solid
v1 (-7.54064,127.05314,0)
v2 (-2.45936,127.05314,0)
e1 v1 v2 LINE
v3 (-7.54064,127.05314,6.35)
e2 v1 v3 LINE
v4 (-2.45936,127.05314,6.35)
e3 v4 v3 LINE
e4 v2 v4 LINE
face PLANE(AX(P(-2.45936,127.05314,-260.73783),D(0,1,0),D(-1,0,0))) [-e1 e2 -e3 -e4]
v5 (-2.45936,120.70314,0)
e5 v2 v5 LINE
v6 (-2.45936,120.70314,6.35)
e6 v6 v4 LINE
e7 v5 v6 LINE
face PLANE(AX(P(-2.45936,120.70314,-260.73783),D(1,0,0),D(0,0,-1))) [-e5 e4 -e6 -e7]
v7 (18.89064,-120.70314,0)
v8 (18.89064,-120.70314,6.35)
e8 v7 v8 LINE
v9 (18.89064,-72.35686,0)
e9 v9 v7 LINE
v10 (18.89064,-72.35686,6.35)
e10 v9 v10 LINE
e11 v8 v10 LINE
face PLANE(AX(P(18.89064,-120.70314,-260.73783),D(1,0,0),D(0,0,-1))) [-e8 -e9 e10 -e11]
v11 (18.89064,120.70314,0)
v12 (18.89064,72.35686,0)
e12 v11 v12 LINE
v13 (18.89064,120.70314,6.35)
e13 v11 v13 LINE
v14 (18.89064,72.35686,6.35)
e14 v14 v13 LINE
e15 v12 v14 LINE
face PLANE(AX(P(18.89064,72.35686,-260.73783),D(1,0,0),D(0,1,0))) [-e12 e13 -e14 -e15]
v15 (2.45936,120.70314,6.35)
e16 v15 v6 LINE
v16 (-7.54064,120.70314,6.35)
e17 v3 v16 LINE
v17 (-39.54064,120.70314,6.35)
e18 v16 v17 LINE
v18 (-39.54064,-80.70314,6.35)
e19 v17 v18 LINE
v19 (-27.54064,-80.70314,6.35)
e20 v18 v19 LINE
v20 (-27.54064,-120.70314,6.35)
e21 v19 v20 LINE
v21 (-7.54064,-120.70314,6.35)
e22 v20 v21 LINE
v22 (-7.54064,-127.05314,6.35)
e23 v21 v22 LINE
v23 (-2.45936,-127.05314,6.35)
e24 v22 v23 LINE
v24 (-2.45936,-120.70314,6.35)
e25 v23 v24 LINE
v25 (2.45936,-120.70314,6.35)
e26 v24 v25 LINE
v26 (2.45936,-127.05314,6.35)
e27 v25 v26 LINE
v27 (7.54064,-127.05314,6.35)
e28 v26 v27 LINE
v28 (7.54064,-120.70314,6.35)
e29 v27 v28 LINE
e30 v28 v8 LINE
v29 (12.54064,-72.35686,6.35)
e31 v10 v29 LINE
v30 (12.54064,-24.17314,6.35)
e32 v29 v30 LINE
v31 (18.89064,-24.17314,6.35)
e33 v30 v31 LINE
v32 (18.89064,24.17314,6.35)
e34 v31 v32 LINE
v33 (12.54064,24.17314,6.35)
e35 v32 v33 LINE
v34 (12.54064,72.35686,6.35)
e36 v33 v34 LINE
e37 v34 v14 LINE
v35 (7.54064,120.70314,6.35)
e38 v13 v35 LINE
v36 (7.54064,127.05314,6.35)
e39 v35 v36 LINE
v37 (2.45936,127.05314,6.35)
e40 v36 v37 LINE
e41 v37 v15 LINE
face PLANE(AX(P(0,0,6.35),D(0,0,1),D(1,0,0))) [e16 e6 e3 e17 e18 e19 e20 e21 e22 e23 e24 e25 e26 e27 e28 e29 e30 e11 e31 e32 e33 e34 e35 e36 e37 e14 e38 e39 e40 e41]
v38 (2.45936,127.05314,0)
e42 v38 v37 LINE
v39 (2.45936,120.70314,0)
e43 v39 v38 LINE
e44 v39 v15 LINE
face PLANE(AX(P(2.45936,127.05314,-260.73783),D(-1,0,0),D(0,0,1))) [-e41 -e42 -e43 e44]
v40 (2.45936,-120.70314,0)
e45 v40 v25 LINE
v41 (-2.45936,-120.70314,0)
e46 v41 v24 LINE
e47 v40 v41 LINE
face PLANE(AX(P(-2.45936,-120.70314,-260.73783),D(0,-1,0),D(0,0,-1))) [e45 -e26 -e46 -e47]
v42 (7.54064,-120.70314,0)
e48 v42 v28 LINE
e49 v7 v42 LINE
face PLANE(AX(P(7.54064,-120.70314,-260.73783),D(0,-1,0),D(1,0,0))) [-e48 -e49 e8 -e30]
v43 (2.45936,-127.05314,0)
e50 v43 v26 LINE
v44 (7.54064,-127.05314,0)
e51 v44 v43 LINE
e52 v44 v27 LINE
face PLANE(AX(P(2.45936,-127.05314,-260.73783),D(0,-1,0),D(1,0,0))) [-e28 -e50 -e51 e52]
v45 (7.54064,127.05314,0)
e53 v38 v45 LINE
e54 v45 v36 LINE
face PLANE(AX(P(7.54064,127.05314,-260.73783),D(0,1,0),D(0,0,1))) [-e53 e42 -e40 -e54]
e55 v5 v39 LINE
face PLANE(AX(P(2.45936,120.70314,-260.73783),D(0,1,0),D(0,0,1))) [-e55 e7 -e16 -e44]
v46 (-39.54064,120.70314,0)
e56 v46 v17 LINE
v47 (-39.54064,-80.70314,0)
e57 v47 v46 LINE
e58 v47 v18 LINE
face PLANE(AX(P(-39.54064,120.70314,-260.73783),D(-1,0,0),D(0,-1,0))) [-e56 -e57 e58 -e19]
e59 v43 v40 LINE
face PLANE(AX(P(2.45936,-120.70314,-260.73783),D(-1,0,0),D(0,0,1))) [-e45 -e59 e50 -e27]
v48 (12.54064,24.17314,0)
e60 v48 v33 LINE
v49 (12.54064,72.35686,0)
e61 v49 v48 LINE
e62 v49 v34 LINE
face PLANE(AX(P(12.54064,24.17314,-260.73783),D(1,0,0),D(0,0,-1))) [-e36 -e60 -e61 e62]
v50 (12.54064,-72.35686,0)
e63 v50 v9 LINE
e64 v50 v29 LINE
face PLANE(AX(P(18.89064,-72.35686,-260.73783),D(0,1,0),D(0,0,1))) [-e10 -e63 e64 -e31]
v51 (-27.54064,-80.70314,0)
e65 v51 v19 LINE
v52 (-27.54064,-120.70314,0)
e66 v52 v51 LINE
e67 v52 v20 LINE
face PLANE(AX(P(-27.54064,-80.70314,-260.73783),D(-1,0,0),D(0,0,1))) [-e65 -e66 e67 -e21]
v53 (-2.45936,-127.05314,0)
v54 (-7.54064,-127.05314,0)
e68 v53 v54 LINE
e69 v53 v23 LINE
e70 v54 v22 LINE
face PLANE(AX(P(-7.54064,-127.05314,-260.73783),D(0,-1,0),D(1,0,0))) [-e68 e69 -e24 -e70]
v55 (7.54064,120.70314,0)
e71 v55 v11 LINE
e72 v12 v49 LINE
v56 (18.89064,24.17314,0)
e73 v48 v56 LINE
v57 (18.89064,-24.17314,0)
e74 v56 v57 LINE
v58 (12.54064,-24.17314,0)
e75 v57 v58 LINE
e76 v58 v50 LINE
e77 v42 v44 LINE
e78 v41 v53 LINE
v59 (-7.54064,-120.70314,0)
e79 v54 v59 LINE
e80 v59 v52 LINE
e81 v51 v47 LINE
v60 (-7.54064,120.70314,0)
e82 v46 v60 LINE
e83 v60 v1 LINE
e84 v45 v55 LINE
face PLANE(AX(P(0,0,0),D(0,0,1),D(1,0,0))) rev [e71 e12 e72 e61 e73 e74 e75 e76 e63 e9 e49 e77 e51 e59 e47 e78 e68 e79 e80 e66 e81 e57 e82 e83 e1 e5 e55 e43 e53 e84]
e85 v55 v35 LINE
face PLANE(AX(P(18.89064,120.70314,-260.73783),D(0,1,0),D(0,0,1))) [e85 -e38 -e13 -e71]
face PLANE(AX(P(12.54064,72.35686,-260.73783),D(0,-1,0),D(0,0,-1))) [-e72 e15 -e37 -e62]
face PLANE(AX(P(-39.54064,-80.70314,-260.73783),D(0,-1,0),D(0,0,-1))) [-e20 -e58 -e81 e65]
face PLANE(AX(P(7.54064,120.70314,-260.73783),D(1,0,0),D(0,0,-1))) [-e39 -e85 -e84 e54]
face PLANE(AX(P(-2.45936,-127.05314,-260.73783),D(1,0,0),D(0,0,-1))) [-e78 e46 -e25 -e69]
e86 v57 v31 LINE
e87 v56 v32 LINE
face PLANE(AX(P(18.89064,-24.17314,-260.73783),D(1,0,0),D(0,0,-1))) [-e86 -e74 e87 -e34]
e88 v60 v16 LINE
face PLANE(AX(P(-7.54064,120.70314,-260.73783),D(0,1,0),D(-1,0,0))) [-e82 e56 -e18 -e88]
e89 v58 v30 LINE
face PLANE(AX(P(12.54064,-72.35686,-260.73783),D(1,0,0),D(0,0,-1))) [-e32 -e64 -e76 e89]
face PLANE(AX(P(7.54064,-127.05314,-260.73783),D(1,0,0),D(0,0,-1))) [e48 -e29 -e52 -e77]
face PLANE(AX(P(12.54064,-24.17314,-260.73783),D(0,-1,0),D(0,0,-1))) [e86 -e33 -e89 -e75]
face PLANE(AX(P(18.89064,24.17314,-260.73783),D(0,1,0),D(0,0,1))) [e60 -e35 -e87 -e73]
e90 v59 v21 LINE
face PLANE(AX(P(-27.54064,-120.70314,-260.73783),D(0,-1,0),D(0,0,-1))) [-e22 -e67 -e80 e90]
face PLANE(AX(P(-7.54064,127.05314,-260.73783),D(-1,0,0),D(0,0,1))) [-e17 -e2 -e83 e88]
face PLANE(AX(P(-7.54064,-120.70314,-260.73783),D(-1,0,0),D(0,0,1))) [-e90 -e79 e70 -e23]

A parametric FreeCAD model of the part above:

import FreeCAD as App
import Part
import Sketcher

V = App.Vector
Q = App.Units.Quantity

doc = App.newDocument("Part")
body = doc.addObject("PartDesign::Body", "Body")

# Sketch on XY plane
sketch1 = doc.addObject("Sketcher::SketchObject", "Sketch")
body.addObject(sketch1)
sketch1.AttachmentSupport = (doc.XY_Plane, [""])
sketch1.MapMode = "FlatFace"
sketch1.addGeometry(Part.LineSegment(V(12, 72, 0), V(19, 72, 0)), False)
sketch1.addGeometry(Part.LineSegment(V(19, 72, 0), V(19, 121, 0)), False)
sketch1.addGeometry(Part.LineSegment(V(19, 121, 0), V(8, 121, 0)), False)
sketch1.addGeometry(Part.LineSegment(V(8, 121, 0), V(8, 127, 0)), False)
sketch1.addGeometry(Part.LineSegment(V(8, 127, 0), V(2, 127, 0)), False)
sketch1.addGeometry(Part.LineSegment(V(2, 127, 0), V(2, 121, 0)), False)
sketch1.addGeometry(Part.LineSegment(V(2, 121, 0), V(-2, 121, 0)), False)
sketch1.addGeometry(Part.LineSegment(V(-2, 121, 0), V(-2, 127, 0)), False)
sketch1.addGeometry(Part.LineSegment(V(-2, 127, 0), V(-8, 127, 0)), False)
sketch1.addGeometry(Part.LineSegment(V(-8, 127, 0), V(-8, 121, 0)), False)
sketch1.addGeometry(Part.LineSegment(V(-8, 121, 0), V(-40, 121, 0)), False)
sketch1.addGeometry(Part.LineSegment(V(-40, 121, 0), V(-40, -81, 0)), False)
sketch1.addGeometry(Part.LineSegment(V(-40, -81, 0), V(-28, -81, 0)), False)
sketch1.addGeometry(Part.LineSegment(V(-28, -81, 0), V(-28, -121, 0)), False)
sketch1.addGeometry(Part.LineSegment(V(-28, -121, 0), V(-8, -121, 0)), False)
sketch1.addGeometry(Part.LineSegment(V(-8, -121, 0), V(-8, -127, 0)), False)
sketch1.addGeometry(Part.LineSegment(V(-8, -127, 0), V(-2, -127, 0)), False)
sketch1.addGeometry(Part.LineSegment(V(-2, -127, 0), V(-2, -121, 0)), False)
sketch1.addGeometry(Part.LineSegment(V(-2, -121, 0), V(2, -121, 0)), False)
sketch1.addGeometry(Part.LineSegment(V(2, -121, 0), V(2, -127, 0)), False)
sketch1.addGeometry(Part.LineSegment(V(2, -127, 0), V(8, -127, 0)), False)
sketch1.addGeometry(Part.LineSegment(V(8, -127, 0), V(8, -121, 0)), False)
sketch1.addGeometry(Part.LineSegment(V(8, -121, 0), V(19, -121, 0)), False)
sketch1.addGeometry(Part.LineSegment(V(19, -121, 0), V(19, -72, 0)), False)
sketch1.addGeometry(Part.LineSegment(V(19, -72, 0), V(12, -72, 0)), False)
sketch1.addGeometry(Part.LineSegment(V(12, -72, 0), V(12, -24, 0)), False)
sketch1.addGeometry(Part.LineSegment(V(12, -24, 0), V(19, -24, 0)), False)
sketch1.addGeometry(Part.LineSegment(V(19, -24, 0), V(19, 24, 0)), False)
sketch1.addGeometry(Part.LineSegment(V(19, 24, 0), V(12, 24, 0)), False)
sketch1.addGeometry(Part.LineSegment(V(12, 24, 0), V(12, 72, 0)), False)
sketch1.addConstraint(Sketcher.Constraint("Coincident", 0, 2, 1, 1))
sketch1.addConstraint(Sketcher.Constraint("Coincident", 1, 2, 2, 1))
sketch1.addConstraint(Sketcher.Constraint("Coincident", 2, 2, 3, 1))
sketch1.addConstraint(Sketcher.Constraint("Coincident", 3, 2, 4, 1))
sketch1.addConstraint(Sketcher.Constraint("Coincident", 4, 2, 5, 1))
sketch1.addConstraint(Sketcher.Constraint("Coincident", 5, 2, 6, 1))
sketch1.addConstraint(Sketcher.Constraint("Coincident", 6, 2, 7, 1))
sketch1.addConstraint(Sketcher.Constraint("Coincident", 7, 2, 8, 1))
sketch1.addConstraint(Sketcher.Constraint("Coincident", 8, 2, 9, 1))
sketch1.addConstraint(Sketcher.Constraint("Coincident", 9, 2, 10, 1))
sketch1.addConstraint(Sketcher.Constraint("Coincident", 10, 2, 11, 1))
sketch1.addConstraint(Sketcher.Constraint("Coincident", 11, 2, 12, 1))
sketch1.addConstraint(Sketcher.Constraint("Coincident", 12, 2, 13, 1))
sketch1.addConstraint(Sketcher.Constraint("Coincident", 13, 2, 14, 1))
sketch1.addConstraint(Sketcher.Constraint("Coincident", 14, 2, 15, 1))
sketch1.addConstraint(Sketcher.Constraint("Coincident", 15, 2, 16, 1))
sketch1.addConstraint(Sketcher.Constraint("Coincident", 16, 2, 17, 1))
sketch1.addConstraint(Sketcher.Constraint("Coincident", 17, 2, 18, 1))
sketch1.addConstraint(Sketcher.Constraint("Coincident", 18, 2, 19, 1))
sketch1.addConstraint(Sketcher.Constraint("Coincident", 19, 2, 20, 1))
sketch1.addConstraint(Sketcher.Constraint("Coincident", 20, 2, 21, 1))
sketch1.addConstraint(Sketcher.Constraint("Coincident", 21, 2, 22, 1))
sketch1.addConstraint(Sketcher.Constraint("Coincident", 22, 2, 23, 1))
sketch1.addConstraint(Sketcher.Constraint("Coincident", 23, 2, 24, 1))
sketch1.addConstraint(Sketcher.Constraint("Coincident", 24, 2, 25, 1))
sketch1.addConstraint(Sketcher.Constraint("Coincident", 25, 2, 26, 1))
sketch1.addConstraint(Sketcher.Constraint("Coincident", 26, 2, 27, 1))
sketch1.addConstraint(Sketcher.Constraint("Coincident", 27, 2, 28, 1))
sketch1.addConstraint(Sketcher.Constraint("Coincident", 28, 2, 29, 1))
sketch1.addConstraint(Sketcher.Constraint("Coincident", 29, 2, 0, 1))
sketch1.addConstraint(Sketcher.Constraint("Horizontal", 0))
sketch1.addConstraint(Sketcher.Constraint("Vertical", 1))
sketch1.addConstraint(Sketcher.Constraint("Horizontal", 2))
sketch1.addConstraint(Sketcher.Constraint("Vertical", 3))
sketch1.addConstraint(Sketcher.Constraint("Horizontal", 4))
sketch1.addConstraint(Sketcher.Constraint("Vertical", 5))
sketch1.addConstraint(Sketcher.Constraint("Horizontal", 6))
sketch1.addConstraint(Sketcher.Constraint("Vertical", 7))
sketch1.addConstraint(Sketcher.Constraint("Horizontal", 8))
sketch1.addConstraint(Sketcher.Constraint("Vertical", 9))
sketch1.addConstraint(Sketcher.Constraint("Horizontal", 10))
sketch1.addConstraint(Sketcher.Constraint("Vertical", 11))
sketch1.addConstraint(Sketcher.Constraint("Horizontal", 12))
sketch1.addConstraint(Sketcher.Constraint("Vertical", 13))
sketch1.addConstraint(Sketcher.Constraint("Horizontal", 14))
sketch1.addConstraint(Sketcher.Constraint("Vertical", 15))
sketch1.addConstraint(Sketcher.Constraint("Horizontal", 16))
sketch1.addConstraint(Sketcher.Constraint("Vertical", 17))
sketch1.addConstraint(Sketcher.Constraint("Horizontal", 18))
sketch1.addConstraint(Sketcher.Constraint("Vertical", 19))
sketch1.addConstraint(Sketcher.Constraint("Horizontal", 20))
sketch1.addConstraint(Sketcher.Constraint("Vertical", 21))
sketch1.addConstraint(Sketcher.Constraint("Horizontal", 22))
sketch1.addConstraint(Sketcher.Constraint("Vertical", 23))
sketch1.addConstraint(Sketcher.Constraint("Horizontal", 24))
sketch1.addConstraint(Sketcher.Constraint("Vertical", 25))
sketch1.addConstraint(Sketcher.Constraint("Horizontal", 26))
sketch1.addConstraint(Sketcher.Constraint("Vertical", 27))
sketch1.addConstraint(Sketcher.Constraint("Horizontal", 28))
sketch1.addConstraint(Sketcher.Constraint("Vertical", 29))
sketch1.addConstraint(Sketcher.Constraint("Symmetric", 2, 2, 14, 2, -1, 1))
sketch1.addConstraint(Sketcher.Constraint("Symmetric", 4, 2, 16, 2, -1, 1))
sketch1.addConstraint(Sketcher.Constraint("Symmetric", 6, 2, 18, 2, -1, 1))
sketch1.addConstraint(Sketcher.Constraint("Symmetric", 8, 2, 20, 2, -1, 1))
sketch1.addConstraint(Sketcher.Constraint("Symmetric", 4, 2, 7, 2, -2))
sketch1.addConstraint(Sketcher.Constraint("Symmetric", 2, 2, 9, 2, -2))
sketch1.addConstraint(Sketcher.Constraint("Symmetric", 1, 2, 22, 2, -1))
sketch1.addConstraint(Sketcher.Constraint("Symmetric", 25, 2, 28, 2, -1))
sketch1.addConstraint(Sketcher.Constraint("Horizontal", 2, 2, 5, 2))
sketch1.addConstraint(Sketcher.Constraint("Vertical", 23, 2, 26, 2))
sketch1.addConstraint(Sketcher.Constraint("Equal", 4, 6))
sketch1.addConstraint(Sketcher.Constraint("Equal", 28, 3))
sketch1.addConstraint(Sketcher.Constraint("Equal", 1, 23))
sketch1.addConstraint(Sketcher.Constraint("Equal", 23, 25))
sketch1.addConstraint(Sketcher.Constraint("Equal", 25, 27))
sketch1.addConstraint(Sketcher.Constraint("DistanceX", 4, 2, 4, 1, Q("5 mm")))
sketch1.addConstraint(Sketcher.Constraint("DistanceX", 10, 2, 10, 1, Q("32 mm")))
sketch1.addConstraint(Sketcher.Constraint("DistanceX", 12, 1, 12, 2, Q("12 mm")))
sketch1.addConstraint(Sketcher.Constraint("DistanceY", 13, 2, 13, 1, Q("40 mm")))
sketch1.addConstraint(Sketcher.Constraint("DistanceX", 12, 2, 24, 2, Q("40 mm")))
sketch1.addConstraint(Sketcher.Constraint("DistanceX", 0, 1, 0, 2, Q("6.35 mm")))
sketch1.addConstraint(Sketcher.Constraint("DistanceY", 1, 1, 1, 2, Q("48.265 mm")))
pad1 = doc.addObject("PartDesign::Pad", "Pad")
body.addObject(pad1)
pad1.Profile = sketch1
pad1.Length = 6.35

# Sketch on XY plane
sketch2 = doc.addObject("Sketcher::SketchObject", "Sketch001")
body.addObject(sketch2)
sketch2.AttachmentSupport = (doc.XY_Plane, [""])
sketch2.MapMode = "FlatFace"
sketch2.AttachmentOffset = App.Placement(V(0, 0, 6.35), App.Rotation())
sketch2.addGeometry(Part.LineSegment(V(-27.5, -80.7, 0), V(-27.5, -120.7, 0)), False)
sketch2.addGeometry(Part.LineSegment(V(-27.5, -120.7, 0), V(-7.5, -120.7, 0)), False)
sketch2.addGeometry(Part.LineSegment(V(-7.5, -120.7, 0), V(-7.5, -127.1, 0)), False)
sketch2.addGeometry(Part.LineSegment(V(-7.5, -127.1, 0), V(-2.5, -127.1, 0)), False)
sketch2.addGeometry(Part.LineSegment(V(-2.5, -127.1, 0), V(-2.5, -120.7, 0)), False)
sketch2.addGeometry(Part.LineSegment(V(-2.5, -120.7, 0), V(2.5, -120.7, 0)), False)
sketch2.addGeometry(Part.LineSegment(V(2.5, -120.7, 0), V(2.5, -127.1, 0)), False)
sketch2.addGeometry(Part.LineSegment(V(2.5, -127.1, 0), V(7.5, -127.1, 0)), False)
sketch2.addGeometry(Part.LineSegment(V(7.5, -127.1, 0), V(7.5, -120.7, 0)), False)
sketch2.addGeometry(Part.LineSegment(V(7.5, -120.7, 0), V(18.9, -120.7, 0)), False)
sketch2.addGeometry(Part.LineSegment(V(18.9, -120.7, 0), V(18.9, -72.4, 0)), False)
sketch2.addGeometry(Part.LineSegment(V(18.9, -72.4, 0), V(12.5, -72.4, 0)), False)
sketch2.addGeometry(Part.LineSegment(V(12.5, -72.4, 0), V(12.5, -24.2, 0)), False)
sketch2.addGeometry(Part.LineSegment(V(12.5, -24.2, 0), V(18.9, -24.2, 0)), False)
sketch2.addGeometry(Part.LineSegment(V(18.9, -24.2, 0), V(18.9, 24.2, 0)), False)
sketch2.addGeometry(Part.LineSegment(V(18.9, 24.2, 0), V(12.5, 24.2, 0)), False)
sketch2.addGeometry(Part.LineSegment(V(12.5, 24.2, 0), V(12.5, 72.4, 0)), False)
sketch2.addGeometry(Part.LineSegment(V(12.5, 72.4, 0), V(18.9, 72.4, 0)), False)
sketch2.addGeometry(Part.LineSegment(V(18.9, 72.4, 0), V(18.9, 120.7, 0)), False)
sketch2.addGeometry(Part.LineSegment(V(18.9, 120.7, 0), V(7.5, 120.7, 0)), False)
sketch2.addGeometry(Part.LineSegment(V(7.5, 120.7, 0), V(7.5, 127.1, 0)), False)
sketch2.addGeometry(Part.LineSegment(V(7.5, 127.1, 0), V(2.5, 127.1, 0)), False)
sketch2.addGeometry(Part.LineSegment(V(2.5, 127.1, 0), V(2.5, 120.7, 0)), False)
sketch2.addGeometry(Part.LineSegment(V(2.5, 120.7, 0), V(-2.5, 120.7, 0)), False)
sketch2.addGeometry(Part.LineSegment(V(-2.5, 120.7, 0), V(-2.5, 127.1, 0)), False)
sketch2.addGeometry(Part.LineSegment(V(-2.5, 127.1, 0), V(-7.5, 127.1, 0)), False)
sketch2.addGeometry(Part.LineSegment(V(-7.5, 127.1, 0), V(-7.5, 120.7, 0)), False)
sketch2.addGeometry(Part.LineSegment(V(-7.5, 120.7, 0), V(-39.5, 120.7, 0)), False)
sketch2.addGeometry(Part.LineSegment(V(-39.5, 120.7, 0), V(-39.5, -80.7, 0)), False)
sketch2.addGeometry(Part.LineSegment(V(-39.5, -80.7, 0), V(-27.5, -80.7, 0)), False)
sketch2.addConstraint(Sketcher.Constraint("Coincident", 0, 2, 1, 1))
sketch2.addConstraint(Sketcher.Constraint("Coincident", 1, 2, 2, 1))
sketch2.addConstraint(Sketcher.Constraint("Coincident", 2, 2, 3, 1))
sketch2.addConstraint(Sketcher.Constraint("Coincident", 3, 2, 4, 1))
sketch2.addConstraint(Sketcher.Constraint("Coincident", 4, 2, 5, 1))
sketch2.addConstraint(Sketcher.Constraint("Coincident", 5, 2, 6, 1))
sketch2.addConstraint(Sketcher.Constraint("Coincident", 6, 2, 7, 1))
sketch2.addConstraint(Sketcher.Constraint("Coincident", 7, 2, 8, 1))
sketch2.addConstraint(Sketcher.Constraint("Coincident", 8, 2, 9, 1))
sketch2.addConstraint(Sketcher.Constraint("Coincident", 9, 2, 10, 1))
sketch2.addConstraint(Sketcher.Constraint("Coincident", 10, 2, 11, 1))
sketch2.addConstraint(Sketcher.Constraint("Coincident", 11, 2, 12, 1))
sketch2.addConstraint(Sketcher.Constraint("Coincident", 12, 2, 13, 1))
sketch2.addConstraint(Sketcher.Constraint("Coincident", 13, 2, 14, 1))
sketch2.addConstraint(Sketcher.Constraint("Coincident", 14, 2, 15, 1))
sketch2.addConstraint(Sketcher.Constraint("Coincident", 15, 2, 16, 1))
sketch2.addConstraint(Sketcher.Constraint("Coincident", 16, 2, 17, 1))
sketch2.addConstraint(Sketcher.Constraint("Coincident", 17, 2, 18, 1))
sketch2.addConstraint(Sketcher.Constraint("Coincident", 18, 2, 19, 1))
sketch2.addConstraint(Sketcher.Constraint("Coincident", 19, 2, 20, 1))
sketch2.addConstraint(Sketcher.Constraint("Coincident", 20, 2, 21, 1))
sketch2.addConstraint(Sketcher.Constraint("Coincident", 21, 2, 22, 1))
sketch2.addConstraint(Sketcher.Constraint("Coincident", 22, 2, 23, 1))
sketch2.addConstraint(Sketcher.Constraint("Coincident", 23, 2, 24, 1))
sketch2.addConstraint(Sketcher.Constraint("Coincident", 24, 2, 25, 1))
sketch2.addConstraint(Sketcher.Constraint("Coincident", 25, 2, 26, 1))
sketch2.addConstraint(Sketcher.Constraint("Coincident", 26, 2, 27, 1))
sketch2.addConstraint(Sketcher.Constraint("Coincident", 27, 2, 28, 1))
sketch2.addConstraint(Sketcher.Constraint("Coincident", 28, 2, 29, 1))
sketch2.addConstraint(Sketcher.Constraint("Coincident", 29, 2, 0, 1))
sketch2.addConstraint(Sketcher.Constraint("Vertical", 0))
sketch2.addConstraint(Sketcher.Constraint("Horizontal", 1))
sketch2.addConstraint(Sketcher.Constraint("Vertical", 2))
sketch2.addConstraint(Sketcher.Constraint("Horizontal", 3))
sketch2.addConstraint(Sketcher.Constraint("Vertical", 4))
sketch2.addConstraint(Sketcher.Constraint("Horizontal", 5))
sketch2.addConstraint(Sketcher.Constraint("Vertical", 6))
sketch2.addConstraint(Sketcher.Constraint("Horizontal", 7))
sketch2.addConstraint(Sketcher.Constraint("Vertical", 8))
sketch2.addConstraint(Sketcher.Constraint("Horizontal", 9))
sketch2.addConstraint(Sketcher.Constraint("Vertical", 10))
sketch2.addConstraint(Sketcher.Constraint("Horizontal", 11))
sketch2.addConstraint(Sketcher.Constraint("Vertical", 12))
sketch2.addConstraint(Sketcher.Constraint("Horizontal", 13))
sketch2.addConstraint(Sketcher.Constraint("Vertical", 14))
sketch2.addConstraint(Sketcher.Constraint("Horizontal", 15))
sketch2.addConstraint(Sketcher.Constraint("Vertical", 16))
sketch2.addConstraint(Sketcher.Constraint("Horizontal", 17))
sketch2.addConstraint(Sketcher.Constraint("Vertical", 18))
sketch2.addConstraint(Sketcher.Constraint("Horizontal", 19))
sketch2.addConstraint(Sketcher.Constraint("Vertical", 20))
sketch2.addConstraint(Sketcher.Constraint("Horizontal", 21))
sketch2.addConstraint(Sketcher.Constraint("Vertical", 22))
sketch2.addConstraint(Sketcher.Constraint("Horizontal", 23))
sketch2.addConstraint(Sketcher.Constraint("Vertical", 24))
sketch2.addConstraint(Sketcher.Constraint("Horizontal", 25))
sketch2.addConstraint(Sketcher.Constraint("Vertical", 26))
sketch2.addConstraint(Sketcher.Constraint("Horizontal", 27))
sketch2.addConstraint(Sketcher.Constraint("Vertical", 28))
sketch2.addConstraint(Sketcher.Constraint("Horizontal", 29))
sketch2.addConstraint(Sketcher.Constraint("Symmetric", 1, 2, 19, 2, -1, 1))
sketch2.addConstraint(Sketcher.Constraint("Symmetric", 3, 2, 21, 2, -1, 1))
sketch2.addConstraint(Sketcher.Constraint("Symmetric", 5, 2, 23, 2, -1, 1))
sketch2.addConstraint(Sketcher.Constraint("Symmetric", 7, 2, 25, 2, -1, 1))
sketch2.addConstraint(Sketcher.Constraint("Symmetric", 3, 2, 6, 2, -2))
sketch2.addConstraint(Sketcher.Constraint("Symmetric", 1, 2, 8, 2, -2))
sketch2.addConstraint(Sketcher.Constraint("Symmetric", 12, 2, 15, 2, -1))
sketch2.addConstraint(Sketcher.Constraint("Symmetric", 10, 2, 17, 2, -1))
sketch2.addConstraint(Sketcher.Constraint("Horizontal", 1, 2, 4, 2))
sketch2.addConstraint(Sketcher.Constraint("Horizontal", 23, 2, 26, 2))
sketch2.addConstraint(Sketcher.Constraint("Vertical", 10, 2, 13, 2))
sketch2.addConstraint(Sketcher.Constraint("Equal", 17, 2))
sketch2.addConstraint(Sketcher.Constraint("Equal", 10, 14))
sketch2.addConstraint(Sketcher.Constraint("DistanceX", 1, 1, 1, 2, Q("20 mm")))
sketch2.addConstraint(Sketcher.Constraint("DistanceX", 27, 2, 27, 1, Q("32 mm")))
sketch2.addConstraint(Sketcher.Constraint("DistanceY", 0, 2, 0, 1, Q("40 mm")))
sketch2.addConstraint(Sketcher.Constraint("DistanceX", 1, 2, 5, 2, Q("10 mm")))
sketch2.addConstraint(Sketcher.Constraint("DistanceX", 8, 2, 11, 2, Q("5 mm")))
sketch2.addConstraint(Sketcher.Constraint("DistanceX", 9, 1, 9, 2, Q("11.35 mm")))
sketch2.addConstraint(Sketcher.Constraint("DistanceY", 8, 2, 12, 2, Q("96.53 mm")))
sketch2.addConstraint(Sketcher.Constraint("DistanceX", 3, 1, 3, 2, Q("5.08128 mm")))
sketch2.addConstraint(Sketcher.Constraint("DistanceY", 10, 1, 10, 2, Q("48.34628 mm")))
pad2 = doc.addObject("PartDesign::Pad", "Pad001")
body.addObject(pad2)
pad2.Profile = sketch2
pad2.Length = 6.35
pad2.Reversed = True

doc.recompute()
